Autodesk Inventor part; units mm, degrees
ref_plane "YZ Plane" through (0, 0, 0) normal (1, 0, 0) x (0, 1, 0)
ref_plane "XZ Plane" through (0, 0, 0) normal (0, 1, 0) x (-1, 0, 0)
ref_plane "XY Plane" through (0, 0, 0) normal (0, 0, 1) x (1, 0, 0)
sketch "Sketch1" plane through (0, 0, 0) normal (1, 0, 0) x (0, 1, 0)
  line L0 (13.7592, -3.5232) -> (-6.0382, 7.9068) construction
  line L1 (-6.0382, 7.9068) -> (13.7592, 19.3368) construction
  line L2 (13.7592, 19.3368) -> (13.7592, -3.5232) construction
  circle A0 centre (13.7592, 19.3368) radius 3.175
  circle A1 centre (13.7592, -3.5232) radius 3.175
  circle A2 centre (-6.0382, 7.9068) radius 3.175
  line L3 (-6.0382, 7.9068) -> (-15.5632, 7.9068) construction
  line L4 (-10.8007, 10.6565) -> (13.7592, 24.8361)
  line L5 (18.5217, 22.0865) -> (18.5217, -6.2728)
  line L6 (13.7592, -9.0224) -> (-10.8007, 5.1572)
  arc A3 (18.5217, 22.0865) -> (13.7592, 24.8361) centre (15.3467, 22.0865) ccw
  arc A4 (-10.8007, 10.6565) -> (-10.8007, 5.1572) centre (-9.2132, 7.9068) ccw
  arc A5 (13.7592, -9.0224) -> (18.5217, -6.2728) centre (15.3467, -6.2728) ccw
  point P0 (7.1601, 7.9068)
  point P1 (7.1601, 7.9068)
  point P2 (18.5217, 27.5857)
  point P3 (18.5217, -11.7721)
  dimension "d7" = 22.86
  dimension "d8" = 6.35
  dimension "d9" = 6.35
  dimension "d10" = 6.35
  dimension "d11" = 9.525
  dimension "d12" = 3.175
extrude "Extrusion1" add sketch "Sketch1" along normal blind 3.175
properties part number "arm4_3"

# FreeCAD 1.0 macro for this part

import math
import FreeCAD as App
import Part
import Sketcher
Q = App.Units.Quantity

doc = App.newDocument("Part")
body = doc.addObject("PartDesign::Body", "Body")

# Sketch on YZ plane
sketch1 = body.newObject("Sketcher::SketchObject", "Sketch")
sketch1.AttachmentSupport = (doc.getObject("YZ_Plane"), [""])
sketch1.MapMode = "FlatFace"
sketch1.addGeometry([
    Part.LineSegment(App.Vector(13.8, 24.8, 0), App.Vector(-10.8, 10.7, 0)),  # 0
    Part.ArcOfCircle(Part.Circle(App.Vector(-9.2, 7.9, 0), App.Vector(0, 0, 1), 3.2), math.radians(120), math.radians(240)),  # 1
    Part.LineSegment(App.Vector(-10.8, 5.2, 0), App.Vector(13.8, -9, 0)),  # 2
    Part.ArcOfCircle(Part.Circle(App.Vector(15.3, -6.3, 0), App.Vector(0, 0, 1), 3.2), math.radians(-120), math.radians(0)),  # 3
    Part.LineSegment(App.Vector(18.5, -6.3, 0), App.Vector(18.5, 22.1, 0)),  # 4
    Part.ArcOfCircle(Part.Circle(App.Vector(15.3, 22.1, 0), App.Vector(0, 0, 1), 3.2), math.radians(0), math.radians(120)),  # 5
    Part.Circle(App.Vector(-6, 7.9, 0), App.Vector(0, 0, 1), 3.2),  # 6
    Part.Circle(App.Vector(13.8, -3.5, 0), App.Vector(0, 0, 1), 3.2),  # 7
    Part.Circle(App.Vector(13.8, 19.3, 0), App.Vector(0, 0, 1), 3.2),  # 8
], False)
sketch1.addConstraint([
    Sketcher.Constraint("Tangent", 0, 2, 1, 1),
    Sketcher.Constraint("Tangent", 1, 2, 2, 1),
    Sketcher.Constraint("Tangent", 2, 2, 3, 1),
    Sketcher.Constraint("Tangent", 3, 2, 4, 1),
    Sketcher.Constraint("Tangent", 4, 2, 5, 1),
    Sketcher.Constraint("Tangent", 5, 2, 0, 1),
    Sketcher.Constraint("Vertical", 4),
    Sketcher.Constraint("Equal", 1, 3),
    Sketcher.Constraint("Equal", 3, 5),
    Sketcher.Constraint("Equal", 5, 6),
    Sketcher.Constraint("Equal", 6, 7),
    Sketcher.Constraint("Equal", 7, 8),
    Sketcher.Constraint("Horizontal", 1, 3, 6, 3),
    Sketcher.Constraint("Vertical", 7, 3, 8, 3),
    Sketcher.Constraint("Vertical", 0, 2, 1, 2),
    Sketcher.Constraint("Vertical", 8, 3, 2, 2),
    Sketcher.Constraint("Diameter", 6, Q("0.25 in")),
    Sketcher.Constraint("DistanceY", 7, 3, 8, 3, Q("0.9 in")),
    Sketcher.Constraint("Angle", 0, Q("-150 deg")),
    Sketcher.Constraint("DistanceX", 1, 3, 6, 3, Q("0.125 in")),
    Sketcher.Constraint("DistanceY", 7, 3, 6, 3, Q("0.45 in")),
    Sketcher.Constraint("DistanceY", 0, 2, 5, 3, Q("0.45 in")),
    Sketcher.Constraint("DistanceY", -1, 1, 1, 3, Q("0.3113 in")),
    Sketcher.Constraint("DistanceX", -1, 1, 3, 3, Q("0.6042 in")),
])
pad1 = body.newObject("PartDesign::Pad", "Pad")
pad1.Profile = sketch1
pad1.Length = Q("0.125 in")

doc.recompute()
